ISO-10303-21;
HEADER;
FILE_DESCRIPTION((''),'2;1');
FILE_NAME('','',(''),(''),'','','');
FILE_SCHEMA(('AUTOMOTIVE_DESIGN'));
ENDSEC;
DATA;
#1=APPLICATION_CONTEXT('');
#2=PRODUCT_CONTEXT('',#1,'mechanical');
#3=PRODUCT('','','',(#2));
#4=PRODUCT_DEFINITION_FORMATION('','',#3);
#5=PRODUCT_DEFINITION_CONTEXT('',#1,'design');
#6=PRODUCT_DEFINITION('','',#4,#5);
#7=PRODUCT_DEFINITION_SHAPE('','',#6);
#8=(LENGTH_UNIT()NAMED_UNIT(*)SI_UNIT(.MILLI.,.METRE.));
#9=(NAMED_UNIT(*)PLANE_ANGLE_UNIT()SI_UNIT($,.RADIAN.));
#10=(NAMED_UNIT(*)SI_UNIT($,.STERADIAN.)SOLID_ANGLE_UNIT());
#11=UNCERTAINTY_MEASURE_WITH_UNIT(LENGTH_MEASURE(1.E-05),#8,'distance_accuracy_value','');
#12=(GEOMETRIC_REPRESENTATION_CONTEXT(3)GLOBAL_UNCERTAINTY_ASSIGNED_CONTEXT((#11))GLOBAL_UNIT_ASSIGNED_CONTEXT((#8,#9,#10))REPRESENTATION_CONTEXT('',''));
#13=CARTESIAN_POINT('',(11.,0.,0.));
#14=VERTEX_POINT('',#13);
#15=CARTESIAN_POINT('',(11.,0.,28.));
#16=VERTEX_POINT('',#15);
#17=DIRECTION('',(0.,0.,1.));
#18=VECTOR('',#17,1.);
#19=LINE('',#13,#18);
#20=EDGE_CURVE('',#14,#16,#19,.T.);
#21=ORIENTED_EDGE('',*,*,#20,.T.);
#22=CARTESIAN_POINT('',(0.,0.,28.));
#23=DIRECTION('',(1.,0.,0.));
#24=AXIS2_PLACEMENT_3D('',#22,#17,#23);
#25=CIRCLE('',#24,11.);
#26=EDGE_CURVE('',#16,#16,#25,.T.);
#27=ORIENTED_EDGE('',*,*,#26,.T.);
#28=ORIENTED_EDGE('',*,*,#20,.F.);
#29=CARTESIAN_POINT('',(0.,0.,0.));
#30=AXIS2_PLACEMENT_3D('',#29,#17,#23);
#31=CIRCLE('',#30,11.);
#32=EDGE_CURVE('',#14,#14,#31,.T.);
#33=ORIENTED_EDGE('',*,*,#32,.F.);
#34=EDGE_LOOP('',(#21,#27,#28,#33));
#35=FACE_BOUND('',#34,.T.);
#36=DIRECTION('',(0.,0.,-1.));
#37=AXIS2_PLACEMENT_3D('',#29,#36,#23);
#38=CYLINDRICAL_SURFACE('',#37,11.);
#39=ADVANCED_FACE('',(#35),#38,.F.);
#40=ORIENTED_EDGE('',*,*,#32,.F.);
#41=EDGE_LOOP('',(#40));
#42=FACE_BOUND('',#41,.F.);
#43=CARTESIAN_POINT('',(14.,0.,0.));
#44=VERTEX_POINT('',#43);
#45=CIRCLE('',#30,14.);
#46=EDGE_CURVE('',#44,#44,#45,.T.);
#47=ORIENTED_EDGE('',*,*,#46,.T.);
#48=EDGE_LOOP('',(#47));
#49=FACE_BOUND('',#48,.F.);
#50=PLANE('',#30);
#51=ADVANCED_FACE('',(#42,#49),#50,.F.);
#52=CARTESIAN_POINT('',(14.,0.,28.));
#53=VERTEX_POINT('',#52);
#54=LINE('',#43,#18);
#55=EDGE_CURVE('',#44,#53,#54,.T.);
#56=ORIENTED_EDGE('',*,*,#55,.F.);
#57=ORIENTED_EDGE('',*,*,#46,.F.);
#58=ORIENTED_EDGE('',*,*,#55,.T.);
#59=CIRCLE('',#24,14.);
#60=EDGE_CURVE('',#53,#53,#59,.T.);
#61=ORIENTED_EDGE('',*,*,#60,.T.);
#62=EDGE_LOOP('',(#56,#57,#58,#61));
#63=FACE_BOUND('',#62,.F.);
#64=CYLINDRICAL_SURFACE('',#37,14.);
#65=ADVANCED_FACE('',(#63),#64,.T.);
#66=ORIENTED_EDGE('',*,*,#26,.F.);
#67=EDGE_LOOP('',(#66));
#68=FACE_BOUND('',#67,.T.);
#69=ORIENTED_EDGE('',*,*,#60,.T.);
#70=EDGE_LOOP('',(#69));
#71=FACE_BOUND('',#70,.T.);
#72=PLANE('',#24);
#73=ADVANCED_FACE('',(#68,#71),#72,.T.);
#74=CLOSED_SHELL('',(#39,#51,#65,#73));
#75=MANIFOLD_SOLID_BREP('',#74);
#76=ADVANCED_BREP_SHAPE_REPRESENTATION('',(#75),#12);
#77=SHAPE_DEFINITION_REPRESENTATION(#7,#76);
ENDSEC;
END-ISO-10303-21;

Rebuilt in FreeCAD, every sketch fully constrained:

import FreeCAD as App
import Part
import Sketcher

V = App.Vector

doc = App.newDocument("Part")
body = doc.addObject("PartDesign::Body", "Body")

# Sketch on XY plane
sketch1 = doc.addObject("Sketcher::SketchObject", "Sketch")
body.addObject(sketch1)
sketch1.AttachmentSupport = (doc.XY_Plane, [""])
sketch1.MapMode = "FlatFace"
sketch1.addGeometry([
    Part.Circle(V(0, 0, 0), V(0, 0, 1), 14),
    Part.Circle(V(0, 0, 0), V(0, 0, 1), 11),
], False)
sketch1.addConstraint([
    Sketcher.Constraint("Coincident", 0, 3, -1, 1),
    Sketcher.Constraint("Coincident", 1, 3, -1, 1),
    Sketcher.Constraint("Diameter", 0, 28.0),
    Sketcher.Constraint("Diameter", 1, 22.0),
])
pad1 = doc.addObject("PartDesign::Pad", "Pad")
body.addObject(pad1)
pad1.Profile = sketch1
pad1.Length = 28

doc.recompute()
